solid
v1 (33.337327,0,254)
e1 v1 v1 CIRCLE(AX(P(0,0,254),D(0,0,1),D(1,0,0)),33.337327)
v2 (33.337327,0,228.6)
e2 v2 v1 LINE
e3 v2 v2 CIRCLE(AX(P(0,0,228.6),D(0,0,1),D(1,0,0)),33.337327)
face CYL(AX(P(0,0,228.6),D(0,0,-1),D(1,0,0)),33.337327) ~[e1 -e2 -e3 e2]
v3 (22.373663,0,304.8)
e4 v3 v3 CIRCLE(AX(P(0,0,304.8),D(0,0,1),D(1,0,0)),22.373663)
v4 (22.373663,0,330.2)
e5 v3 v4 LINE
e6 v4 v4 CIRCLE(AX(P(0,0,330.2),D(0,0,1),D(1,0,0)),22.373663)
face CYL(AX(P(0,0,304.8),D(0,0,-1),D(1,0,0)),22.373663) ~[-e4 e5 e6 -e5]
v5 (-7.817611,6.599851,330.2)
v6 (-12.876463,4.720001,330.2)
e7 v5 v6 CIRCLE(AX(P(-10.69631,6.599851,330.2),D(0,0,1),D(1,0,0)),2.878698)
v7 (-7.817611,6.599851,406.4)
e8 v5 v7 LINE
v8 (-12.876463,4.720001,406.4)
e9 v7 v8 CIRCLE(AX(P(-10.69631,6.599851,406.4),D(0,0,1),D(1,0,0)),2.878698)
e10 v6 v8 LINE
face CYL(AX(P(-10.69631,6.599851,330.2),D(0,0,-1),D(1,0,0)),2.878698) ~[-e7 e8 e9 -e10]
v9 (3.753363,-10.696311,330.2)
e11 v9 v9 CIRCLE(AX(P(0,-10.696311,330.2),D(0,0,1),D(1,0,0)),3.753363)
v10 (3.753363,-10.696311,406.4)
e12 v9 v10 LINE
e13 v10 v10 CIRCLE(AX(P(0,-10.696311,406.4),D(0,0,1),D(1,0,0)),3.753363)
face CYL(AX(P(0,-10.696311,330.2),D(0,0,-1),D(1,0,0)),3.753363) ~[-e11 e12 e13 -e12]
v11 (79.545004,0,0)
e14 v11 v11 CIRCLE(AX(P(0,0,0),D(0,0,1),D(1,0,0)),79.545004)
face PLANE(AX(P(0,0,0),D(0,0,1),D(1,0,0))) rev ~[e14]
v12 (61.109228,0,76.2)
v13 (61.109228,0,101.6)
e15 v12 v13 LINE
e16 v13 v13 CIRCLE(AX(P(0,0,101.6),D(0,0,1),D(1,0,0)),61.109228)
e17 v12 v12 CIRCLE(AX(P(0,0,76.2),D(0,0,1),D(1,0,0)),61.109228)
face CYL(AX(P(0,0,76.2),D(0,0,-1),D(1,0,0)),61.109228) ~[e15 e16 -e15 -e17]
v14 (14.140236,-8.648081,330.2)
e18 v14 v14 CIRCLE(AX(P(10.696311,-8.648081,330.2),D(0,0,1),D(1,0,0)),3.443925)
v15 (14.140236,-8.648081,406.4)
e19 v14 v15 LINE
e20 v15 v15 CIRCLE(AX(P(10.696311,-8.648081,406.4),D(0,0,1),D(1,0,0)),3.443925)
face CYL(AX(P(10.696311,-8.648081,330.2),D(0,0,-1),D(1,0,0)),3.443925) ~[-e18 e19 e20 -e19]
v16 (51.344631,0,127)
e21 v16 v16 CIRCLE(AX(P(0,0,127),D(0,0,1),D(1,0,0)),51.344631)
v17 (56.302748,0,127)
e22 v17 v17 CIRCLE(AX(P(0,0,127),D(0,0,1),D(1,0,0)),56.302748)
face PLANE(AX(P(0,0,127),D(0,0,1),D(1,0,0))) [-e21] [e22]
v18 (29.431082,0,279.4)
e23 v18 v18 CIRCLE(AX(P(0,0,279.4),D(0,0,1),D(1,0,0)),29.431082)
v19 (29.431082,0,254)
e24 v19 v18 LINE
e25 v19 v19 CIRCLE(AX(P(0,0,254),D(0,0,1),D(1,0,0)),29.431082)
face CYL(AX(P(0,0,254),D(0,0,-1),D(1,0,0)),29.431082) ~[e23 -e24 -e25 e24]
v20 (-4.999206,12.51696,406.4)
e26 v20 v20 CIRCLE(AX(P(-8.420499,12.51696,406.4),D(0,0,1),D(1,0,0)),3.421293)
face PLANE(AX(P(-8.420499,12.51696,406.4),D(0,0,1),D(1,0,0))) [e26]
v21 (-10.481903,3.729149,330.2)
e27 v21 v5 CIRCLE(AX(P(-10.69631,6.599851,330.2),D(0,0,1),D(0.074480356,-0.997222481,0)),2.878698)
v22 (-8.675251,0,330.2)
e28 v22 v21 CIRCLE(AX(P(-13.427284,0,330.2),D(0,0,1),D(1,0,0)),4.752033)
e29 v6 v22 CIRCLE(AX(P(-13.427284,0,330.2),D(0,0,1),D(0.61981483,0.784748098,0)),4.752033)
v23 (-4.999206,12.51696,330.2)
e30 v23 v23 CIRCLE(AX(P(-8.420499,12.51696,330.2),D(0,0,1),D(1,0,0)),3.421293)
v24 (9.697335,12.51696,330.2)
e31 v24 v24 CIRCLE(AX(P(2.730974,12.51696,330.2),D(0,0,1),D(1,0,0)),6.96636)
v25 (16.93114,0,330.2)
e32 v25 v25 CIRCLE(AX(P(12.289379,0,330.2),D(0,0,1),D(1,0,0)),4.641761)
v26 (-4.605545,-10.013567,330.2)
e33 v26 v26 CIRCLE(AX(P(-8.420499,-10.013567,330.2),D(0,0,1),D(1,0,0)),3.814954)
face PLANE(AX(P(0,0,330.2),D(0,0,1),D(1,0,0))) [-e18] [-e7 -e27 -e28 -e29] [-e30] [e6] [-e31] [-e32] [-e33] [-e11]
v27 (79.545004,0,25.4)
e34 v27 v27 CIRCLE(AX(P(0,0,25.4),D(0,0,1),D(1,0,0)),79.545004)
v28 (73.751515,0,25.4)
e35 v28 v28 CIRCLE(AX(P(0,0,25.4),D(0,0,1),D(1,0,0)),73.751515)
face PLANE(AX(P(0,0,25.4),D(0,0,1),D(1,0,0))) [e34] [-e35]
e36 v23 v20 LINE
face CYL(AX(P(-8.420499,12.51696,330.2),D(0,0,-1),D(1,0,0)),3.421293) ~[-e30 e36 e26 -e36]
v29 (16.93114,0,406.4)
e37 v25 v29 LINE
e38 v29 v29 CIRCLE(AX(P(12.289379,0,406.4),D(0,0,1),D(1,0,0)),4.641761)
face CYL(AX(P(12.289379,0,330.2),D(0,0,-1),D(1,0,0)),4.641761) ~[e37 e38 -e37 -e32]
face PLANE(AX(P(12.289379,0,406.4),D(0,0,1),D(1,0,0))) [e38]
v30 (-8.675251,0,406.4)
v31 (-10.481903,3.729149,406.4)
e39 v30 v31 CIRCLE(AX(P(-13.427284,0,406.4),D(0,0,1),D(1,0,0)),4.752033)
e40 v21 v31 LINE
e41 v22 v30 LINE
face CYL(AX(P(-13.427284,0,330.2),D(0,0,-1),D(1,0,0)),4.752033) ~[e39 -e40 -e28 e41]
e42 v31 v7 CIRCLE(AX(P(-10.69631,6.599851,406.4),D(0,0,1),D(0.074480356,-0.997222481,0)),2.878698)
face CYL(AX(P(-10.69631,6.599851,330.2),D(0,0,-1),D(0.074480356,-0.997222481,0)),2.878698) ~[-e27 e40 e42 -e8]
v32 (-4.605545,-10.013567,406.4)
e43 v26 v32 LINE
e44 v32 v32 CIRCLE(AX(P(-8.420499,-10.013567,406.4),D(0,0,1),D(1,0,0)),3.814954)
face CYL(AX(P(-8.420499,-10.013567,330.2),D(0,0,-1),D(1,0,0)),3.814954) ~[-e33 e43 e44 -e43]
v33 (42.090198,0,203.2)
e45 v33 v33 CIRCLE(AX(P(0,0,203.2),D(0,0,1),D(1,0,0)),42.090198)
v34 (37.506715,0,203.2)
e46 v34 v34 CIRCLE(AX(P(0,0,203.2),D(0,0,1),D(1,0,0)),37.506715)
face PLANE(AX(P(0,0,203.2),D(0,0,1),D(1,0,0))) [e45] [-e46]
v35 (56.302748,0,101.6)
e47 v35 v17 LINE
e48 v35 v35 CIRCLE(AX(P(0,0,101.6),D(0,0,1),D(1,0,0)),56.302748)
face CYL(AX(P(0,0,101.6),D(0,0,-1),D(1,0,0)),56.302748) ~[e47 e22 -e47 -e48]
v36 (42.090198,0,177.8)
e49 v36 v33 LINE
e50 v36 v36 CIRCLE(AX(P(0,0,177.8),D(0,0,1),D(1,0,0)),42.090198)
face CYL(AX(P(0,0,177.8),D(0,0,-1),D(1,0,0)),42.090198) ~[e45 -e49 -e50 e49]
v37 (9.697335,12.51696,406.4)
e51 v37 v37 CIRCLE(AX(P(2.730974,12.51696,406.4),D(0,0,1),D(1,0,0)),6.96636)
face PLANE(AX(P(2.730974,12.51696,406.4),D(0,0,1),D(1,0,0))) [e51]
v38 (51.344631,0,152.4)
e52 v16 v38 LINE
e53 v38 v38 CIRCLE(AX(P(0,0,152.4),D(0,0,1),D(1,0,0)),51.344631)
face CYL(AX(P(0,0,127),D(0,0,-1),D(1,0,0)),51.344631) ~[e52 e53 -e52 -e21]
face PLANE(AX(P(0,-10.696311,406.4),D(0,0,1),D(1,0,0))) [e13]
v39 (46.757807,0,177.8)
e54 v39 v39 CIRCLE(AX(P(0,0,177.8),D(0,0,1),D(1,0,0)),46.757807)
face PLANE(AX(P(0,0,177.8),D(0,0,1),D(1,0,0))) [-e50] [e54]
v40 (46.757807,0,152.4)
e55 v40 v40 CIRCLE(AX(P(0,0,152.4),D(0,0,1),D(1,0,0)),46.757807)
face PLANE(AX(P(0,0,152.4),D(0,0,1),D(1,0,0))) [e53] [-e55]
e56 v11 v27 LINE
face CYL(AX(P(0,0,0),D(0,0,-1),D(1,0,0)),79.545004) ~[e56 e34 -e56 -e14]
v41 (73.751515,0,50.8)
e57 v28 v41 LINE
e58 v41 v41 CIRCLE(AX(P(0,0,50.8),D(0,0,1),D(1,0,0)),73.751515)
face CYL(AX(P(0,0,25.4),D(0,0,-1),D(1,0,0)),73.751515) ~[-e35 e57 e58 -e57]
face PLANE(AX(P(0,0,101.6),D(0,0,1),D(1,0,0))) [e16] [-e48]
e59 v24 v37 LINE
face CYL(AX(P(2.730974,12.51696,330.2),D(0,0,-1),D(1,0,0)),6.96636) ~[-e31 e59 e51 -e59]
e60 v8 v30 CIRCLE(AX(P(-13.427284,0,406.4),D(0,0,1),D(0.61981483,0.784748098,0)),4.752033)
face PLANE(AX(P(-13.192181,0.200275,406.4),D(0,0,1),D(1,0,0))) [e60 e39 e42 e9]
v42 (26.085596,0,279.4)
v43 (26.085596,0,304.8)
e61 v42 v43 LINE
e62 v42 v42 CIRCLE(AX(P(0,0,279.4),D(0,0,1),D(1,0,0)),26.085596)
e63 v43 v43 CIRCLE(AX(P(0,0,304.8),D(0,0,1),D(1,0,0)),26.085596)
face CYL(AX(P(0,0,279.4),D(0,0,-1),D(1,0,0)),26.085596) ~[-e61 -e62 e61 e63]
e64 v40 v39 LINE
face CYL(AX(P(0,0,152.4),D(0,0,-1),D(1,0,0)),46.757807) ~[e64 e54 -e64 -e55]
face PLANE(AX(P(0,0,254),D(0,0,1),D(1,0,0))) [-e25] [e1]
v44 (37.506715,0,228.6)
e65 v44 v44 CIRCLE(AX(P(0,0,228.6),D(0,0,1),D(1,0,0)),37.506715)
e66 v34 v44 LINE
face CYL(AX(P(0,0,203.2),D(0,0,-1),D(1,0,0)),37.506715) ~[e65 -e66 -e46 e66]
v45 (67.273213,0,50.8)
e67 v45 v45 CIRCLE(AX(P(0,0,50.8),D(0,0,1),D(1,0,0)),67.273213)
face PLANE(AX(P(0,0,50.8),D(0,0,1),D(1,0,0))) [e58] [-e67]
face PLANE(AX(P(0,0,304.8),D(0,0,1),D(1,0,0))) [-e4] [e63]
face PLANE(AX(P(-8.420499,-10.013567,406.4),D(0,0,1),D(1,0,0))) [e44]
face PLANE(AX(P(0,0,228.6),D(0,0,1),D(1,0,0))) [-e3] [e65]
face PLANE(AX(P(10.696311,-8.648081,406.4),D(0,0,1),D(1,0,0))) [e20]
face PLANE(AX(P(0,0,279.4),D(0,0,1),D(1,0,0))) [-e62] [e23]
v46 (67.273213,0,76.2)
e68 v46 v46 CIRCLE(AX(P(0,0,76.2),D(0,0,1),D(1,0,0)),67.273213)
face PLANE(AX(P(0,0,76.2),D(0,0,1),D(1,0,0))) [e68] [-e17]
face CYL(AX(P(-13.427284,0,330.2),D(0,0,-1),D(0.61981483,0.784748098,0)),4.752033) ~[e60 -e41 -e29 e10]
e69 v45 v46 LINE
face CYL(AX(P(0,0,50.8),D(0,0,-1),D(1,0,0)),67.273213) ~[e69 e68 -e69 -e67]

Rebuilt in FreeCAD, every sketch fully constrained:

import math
import FreeCAD as App
import Part
import Sketcher

V = App.Vector
Q = App.Units.Quantity

doc = App.newDocument("Part")
body = doc.addObject("PartDesign::Body", "Body")

# Sketch on XY plane
sketch1 = body.newObject("Sketcher::SketchObject", "Sketch")
sketch1.AttachmentSupport = (doc.getObject("XY_Plane"), [""])
sketch1.MapMode = "FlatFace"
sketch1.addGeometry(Part.Circle(V(0, 0, 0), V(0, 0, 1), 79.545004), False)
sketch1.addConstraint(Sketcher.Constraint("Coincident", 0, 3, -1, 1))
sketch1.addConstraint(Sketcher.Constraint("Diameter", 0, 159.090007))
pad1 = body.newObject("PartDesign::Pad", "Pad")
pad1.Profile = sketch1
pad1.Length = Q("1 in")

# Sketch on XY plane
sketch2 = body.newObject("Sketcher::SketchObject", "Sketch001")
sketch2.AttachmentSupport = (doc.getObject("XY_Plane"), [""])
sketch2.MapMode = "FlatFace"
sketch2.AttachmentOffset = App.Placement(V(0, 0, 1 * 25.4), App.Rotation())
sketch2.addGeometry(Part.Circle(V(0, 0, 0), V(0, 0, 1), 73.751515), False)
sketch2.addConstraint(Sketcher.Constraint("Coincident", 0, 3, -1, 1))
sketch2.addConstraint(Sketcher.Constraint("Diameter", 0, 147.50303))
pad2 = body.newObject("PartDesign::Pad", "Pad001")
pad2.Profile = sketch2
pad2.Length = Q("1 in")

# Sketch on XY plane
sketch3 = body.newObject("Sketcher::SketchObject", "Sketch002")
sketch3.AttachmentSupport = (doc.getObject("XY_Plane"), [""])
sketch3.MapMode = "FlatFace"
sketch3.AttachmentOffset = App.Placement(V(0, 0, 2 * 25.4), App.Rotation())
sketch3.addGeometry(Part.Circle(V(0, 0, 0), V(0, 0, 1), 67.273213), False)
sketch3.addConstraint(Sketcher.Constraint("Coincident", 0, 3, -1, 1))
sketch3.addConstraint(Sketcher.Constraint("Diameter", 0, 134.546425))
pad3 = body.newObject("PartDesign::Pad", "Pad002")
pad3.Profile = sketch3
pad3.Length = Q("1 in")

# Sketch on XY plane
sketch4 = body.newObject("Sketcher::SketchObject", "Sketch003")
sketch4.AttachmentSupport = (doc.getObject("XY_Plane"), [""])
sketch4.MapMode = "FlatFace"
sketch4.AttachmentOffset = App.Placement(V(0, 0, 3 * 25.4), App.Rotation())
sketch4.addGeometry(Part.Circle(V(0, 0, 0), V(0, 0, 1), 61.109228), False)
sketch4.addConstraint(Sketcher.Constraint("Coincident", 0, 3, -1, 1))
sketch4.addConstraint(Sketcher.Constraint("Diameter", 0, 122.218456))
pad4 = body.newObject("PartDesign::Pad", "Pad003")
pad4.Profile = sketch4
pad4.Length = Q("1 in")

# Sketch on XY plane
sketch5 = body.newObject("Sketcher::SketchObject", "Sketch004")
sketch5.AttachmentSupport = (doc.getObject("XY_Plane"), [""])
sketch5.MapMode = "FlatFace"
sketch5.AttachmentOffset = App.Placement(V(0, 0, 4 * 25.4), App.Rotation())
sketch5.addGeometry(Part.Circle(V(0, 0, 0), V(0, 0, 1), 56.302748), False)
sketch5.addConstraint(Sketcher.Constraint("Coincident", 0, 3, -1, 1))
sketch5.addConstraint(Sketcher.Constraint("Diameter", 0, 112.605497))
pad5 = body.newObject("PartDesign::Pad", "Pad004")
pad5.Profile = sketch5
pad5.Length = Q("1 in")

# Sketch on XY plane
sketch6 = body.newObject("Sketcher::SketchObject", "Sketch005")
sketch6.AttachmentSupport = (doc.getObject("XY_Plane"), [""])
sketch6.MapMode = "FlatFace"
sketch6.AttachmentOffset = App.Placement(V(0, 0, 5 * 25.4), App.Rotation())
sketch6.addGeometry(Part.Circle(V(0, 0, 0), V(0, 0, 1), 51.344631), False)
sketch6.addConstraint(Sketcher.Constraint("Coincident", 0, 3, -1, 1))
sketch6.addConstraint(Sketcher.Constraint("Diameter", 0, 102.689263))
pad6 = body.newObject("PartDesign::Pad", "Pad005")
pad6.Profile = sketch6
pad6.Length = Q("1 in")

# Sketch on XY plane
sketch7 = body.newObject("Sketcher::SketchObject", "Sketch006")
sketch7.AttachmentSupport = (doc.getObject("XY_Plane"), [""])
sketch7.MapMode = "FlatFace"
sketch7.AttachmentOffset = App.Placement(V(0, 0, 6 * 25.4), App.Rotation())
sketch7.addGeometry(Part.Circle(V(0, 0, 0), V(0, 0, 1), 46.757807), False)
sketch7.addConstraint(Sketcher.Constraint("Coincident", 0, 3, -1, 1))
sketch7.addConstraint(Sketcher.Constraint("Diameter", 0, 93.515613))
pad7 = body.newObject("PartDesign::Pad", "Pad006")
pad7.Profile = sketch7
pad7.Length = Q("1 in")

# Sketch on XY plane
sketch8 = body.newObject("Sketcher::SketchObject", "Sketch007")
sketch8.AttachmentSupport = (doc.getObject("XY_Plane"), [""])
sketch8.MapMode = "FlatFace"
sketch8.AttachmentOffset = App.Placement(V(0, 0, 7 * 25.4), App.Rotation())
sketch8.addGeometry(Part.Circle(V(0, 0, 0), V(0, 0, 1), 42.090198), False)
sketch8.addConstraint(Sketcher.Constraint("Coincident", 0, 3, -1, 1))
sketch8.addConstraint(Sketcher.Constraint("Diameter", 0, 84.180396))
pad8 = body.newObject("PartDesign::Pad", "Pad007")
pad8.Profile = sketch8
pad8.Length = Q("1 in")

# Sketch on XY plane
sketch9 = body.newObject("Sketcher::SketchObject", "Sketch008")
sketch9.AttachmentSupport = (doc.getObject("XY_Plane"), [""])
sketch9.MapMode = "FlatFace"
sketch9.AttachmentOffset = App.Placement(V(0, 0, 8 * 25.4), App.Rotation())
sketch9.addGeometry(Part.Circle(V(0, 0, 0), V(0, 0, 1), 37.506715), False)
sketch9.addConstraint(Sketcher.Constraint("Coincident", 0, 3, -1, 1))
sketch9.addConstraint(Sketcher.Constraint("Diameter", 0, 75.013431))
pad9 = body.newObject("PartDesign::Pad", "Pad008")
pad9.Profile = sketch9
pad9.Length = Q("1 in")

# Sketch on XY plane
sketch10 = body.newObject("Sketcher::SketchObject", "Sketch009")
sketch10.AttachmentSupport = (doc.getObject("XY_Plane"), [""])
sketch10.MapMode = "FlatFace"
sketch10.AttachmentOffset = App.Placement(V(0, 0, 9 * 25.4), App.Rotation())
sketch10.addGeometry(Part.Circle(V(0, 0, 0), V(0, 0, 1), 33.337327), False)
sketch10.addConstraint(Sketcher.Constraint("Coincident", 0, 3, -1, 1))
sketch10.addConstraint(Sketcher.Constraint("Diameter", 0, 66.674653))
pad10 = body.newObject("PartDesign::Pad", "Pad009")
pad10.Profile = sketch10
pad10.Length = Q("1 in")

# Sketch on XY plane
sketch11 = body.newObject("Sketcher::SketchObject", "Sketch010")
sketch11.AttachmentSupport = (doc.getObject("XY_Plane"), [""])
sketch11.MapMode = "FlatFace"
sketch11.AttachmentOffset = App.Placement(V(0, 0, 10 * 25.4), App.Rotation())
sketch11.addGeometry(Part.Circle(V(0, 0, 0), V(0, 0, 1), 29.431082), False)
sketch11.addConstraint(Sketcher.Constraint("Coincident", 0, 3, -1, 1))
sketch11.addConstraint(Sketcher.Constraint("Diameter", 0, 58.862163))
pad11 = body.newObject("PartDesign::Pad", "Pad010")
pad11.Profile = sketch11
pad11.Length = Q("1 in")

# Sketch on XY plane
sketch12 = body.newObject("Sketcher::SketchObject", "Sketch011")
sketch12.AttachmentSupport = (doc.getObject("XY_Plane"), [""])
sketch12.MapMode = "FlatFace"
sketch12.AttachmentOffset = App.Placement(V(0, 0, 11 * 25.4), App.Rotation())
sketch12.addGeometry(Part.Circle(V(0, 0, 0), V(0, 0, 1), 26.085596), False)
sketch12.addConstraint(Sketcher.Constraint("Coincident", 0, 3, -1, 1))
sketch12.addConstraint(Sketcher.Constraint("Diameter", 0, 52.171192))
pad12 = body.newObject("PartDesign::Pad", "Pad011")
pad12.Profile = sketch12
pad12.Length = Q("1 in")

# Sketch on XY plane
sketch13 = body.newObject("Sketcher::SketchObject", "Sketch012")
sketch13.AttachmentSupport = (doc.getObject("XY_Plane"), [""])
sketch13.MapMode = "FlatFace"
sketch13.AttachmentOffset = App.Placement(V(0, 0, 12 * 25.4), App.Rotation())
sketch13.addGeometry(Part.Circle(V(0, 0, 0), V(0, 0, 1), 22.373663), False)
sketch13.addConstraint(Sketcher.Constraint("Coincident", 0, 3, -1, 1))
sketch13.addConstraint(Sketcher.Constraint("Diameter", 0, 44.747326))
pad13 = body.newObject("PartDesign::Pad", "Pad012")
pad13.Profile = sketch13
pad13.Length = Q("1 in")

# Sketch on XY plane
sketch14 = body.newObject("Sketcher::SketchObject", "Sketch013")
sketch14.AttachmentSupport = (doc.getObject("XY_Plane"), [""])
sketch14.MapMode = "FlatFace"
sketch14.AttachmentOffset = App.Placement(V(0, 0, 13 * 25.4), App.Rotation())
sketch14.addGeometry(Part.Circle(V(-8.420499, 12.51696, 0), V(0, 0, 1), 3.421293), False)
sketch14.addGeometry(Part.ArcOfCircle(Part.Circle(V(-13.427284, 0, 0), V(0, 0, 1), 4.752033), math.radians(0), math.radians(51.697386)), False)
sketch14.addGeometry(Part.ArcOfCircle(Part.Circle(V(-10.69631, 6.599851, 0), V(0, 0, 1), 2.878698), math.radians(-85.728635), math.radians(0)), False)
sketch14.addGeometry(Part.ArcOfCircle(Part.Circle(V(-10.69631, 6.599851, 0), V(0, 0, 1), 2.878698), math.radians(0), math.radians(220.769751)), False)
sketch14.addGeometry(Part.ArcOfCircle(Part.Circle(V(-13.427284, 0, 0), V(0, 0, 1), 4.752033), math.radians(83.34373), math.radians(360)), False)
sketch14.addGeometry(Part.Circle(V(-8.420499, -10.013567, 0), V(0, 0, 1), 3.814954), False)
sketch14.addGeometry(Part.Circle(V(12.289379, 0, 0), V(0, 0, 1), 4.641761), False)
sketch14.addGeometry(Part.Circle(V(10.696311, -8.648081, 0), V(0, 0, 1), 3.443925), False)
sketch14.addGeometry(Part.Circle(V(0, -10.696311, 0), V(0, 0, 1), 3.753363), False)
sketch14.addGeometry(Part.Circle(V(2.730974, 12.51696, 0), V(0, 0, 1), 6.96636), False)
sketch14.addConstraint(Sketcher.Constraint("Coincident", 1, 2, 2, 1))
sketch14.addConstraint(Sketcher.Constraint("Tangent", 2, 2, 3, 1))
sketch14.addConstraint(Sketcher.Constraint("Coincident", 3, 2, 4, 1))
sketch14.addConstraint(Sketcher.Constraint("Tangent", 4, 2, 1, 1))
sketch14.addConstraint(Sketcher.Constraint("Equal", 2, 3))
sketch14.addConstraint(Sketcher.Constraint("Equal", 1, 4))
sketch14.addConstraint(Sketcher.Constraint("PointOnObject", 1, 3, -1))
sketch14.addConstraint(Sketcher.Constraint("PointOnObject", 6, 3, -1))
sketch14.addConstraint(Sketcher.Constraint("PointOnObject", 8, 3, -2))
sketch14.addConstraint(Sketcher.Constraint("PointOnObject", 4, 2, -1))
sketch14.addConstraint(Sketcher.Constraint("Horizontal", 0, 3, 9, 3))
sketch14.addConstraint(Sketcher.Constraint("Horizontal", 3, 3, 2, 2))
sketch14.addConstraint(Sketcher.Constraint("Vertical", 0, 3, 5, 3))
sketch14.addConstraint(Sketcher.Constraint("Radius", 2, 2.878698))
sketch14.addConstraint(Sketcher.Constraint("Diameter", 7, 6.887851))
sketch14.addConstraint(Sketcher.Constraint("Diameter", 9, 13.932721))
sketch14.addConstraint(Sketcher.Constraint("Diameter", 0, 6.842587))
sketch14.addConstraint(Sketcher.Constraint("Diameter", 5, 7.629907))
sketch14.addConstraint(Sketcher.Constraint("Diameter", 6, 9.283522))
sketch14.addConstraint(Sketcher.Constraint("Diameter", 8, 7.506726))
sketch14.addConstraint(Sketcher.Constraint("Radius", 1, 4.752033))
sketch14.addConstraint(Sketcher.Constraint("DistanceX", 0, 3, -1, 1, 8.420499))
sketch14.addConstraint(Sketcher.Constraint("DistanceY", -1, 1, 3, 2, 4.720001))
sketch14.addConstraint(Sketcher.Constraint("DistanceY", -1, 1, 0, 3, 12.51696))
sketch14.addConstraint(Sketcher.Constraint("DistanceX", 2, 3, -1, 1, 10.69631))
sketch14.addConstraint(Sketcher.Constraint("DistanceY", -1, 1, 2, 3, 6.599851))
sketch14.addConstraint(Sketcher.Constraint("DistanceX", -1, 1, 6, 3, 12.289379))
sketch14.addConstraint(Sketcher.Constraint("DistanceX", -1, 1, 7, 3, 10.696311))
sketch14.addConstraint(Sketcher.Constraint("DistanceY", 7, 3, -1, 1, 8.648081))
sketch14.addConstraint(Sketcher.Constraint("DistanceY", 8, 3, -1, 1, 10.696311))
sketch14.addConstraint(Sketcher.Constraint("DistanceY", 5, 3, 2, 3, 16.613419))
sketch14.addConstraint(Sketcher.Constraint("DistanceX", -1, 1, 9, 3, 2.730974))
pad14 = body.newObject("PartDesign::Pad", "Pad013")
pad14.Profile = sketch14
pad14.Length = Q("3 in")

doc.recompute()
